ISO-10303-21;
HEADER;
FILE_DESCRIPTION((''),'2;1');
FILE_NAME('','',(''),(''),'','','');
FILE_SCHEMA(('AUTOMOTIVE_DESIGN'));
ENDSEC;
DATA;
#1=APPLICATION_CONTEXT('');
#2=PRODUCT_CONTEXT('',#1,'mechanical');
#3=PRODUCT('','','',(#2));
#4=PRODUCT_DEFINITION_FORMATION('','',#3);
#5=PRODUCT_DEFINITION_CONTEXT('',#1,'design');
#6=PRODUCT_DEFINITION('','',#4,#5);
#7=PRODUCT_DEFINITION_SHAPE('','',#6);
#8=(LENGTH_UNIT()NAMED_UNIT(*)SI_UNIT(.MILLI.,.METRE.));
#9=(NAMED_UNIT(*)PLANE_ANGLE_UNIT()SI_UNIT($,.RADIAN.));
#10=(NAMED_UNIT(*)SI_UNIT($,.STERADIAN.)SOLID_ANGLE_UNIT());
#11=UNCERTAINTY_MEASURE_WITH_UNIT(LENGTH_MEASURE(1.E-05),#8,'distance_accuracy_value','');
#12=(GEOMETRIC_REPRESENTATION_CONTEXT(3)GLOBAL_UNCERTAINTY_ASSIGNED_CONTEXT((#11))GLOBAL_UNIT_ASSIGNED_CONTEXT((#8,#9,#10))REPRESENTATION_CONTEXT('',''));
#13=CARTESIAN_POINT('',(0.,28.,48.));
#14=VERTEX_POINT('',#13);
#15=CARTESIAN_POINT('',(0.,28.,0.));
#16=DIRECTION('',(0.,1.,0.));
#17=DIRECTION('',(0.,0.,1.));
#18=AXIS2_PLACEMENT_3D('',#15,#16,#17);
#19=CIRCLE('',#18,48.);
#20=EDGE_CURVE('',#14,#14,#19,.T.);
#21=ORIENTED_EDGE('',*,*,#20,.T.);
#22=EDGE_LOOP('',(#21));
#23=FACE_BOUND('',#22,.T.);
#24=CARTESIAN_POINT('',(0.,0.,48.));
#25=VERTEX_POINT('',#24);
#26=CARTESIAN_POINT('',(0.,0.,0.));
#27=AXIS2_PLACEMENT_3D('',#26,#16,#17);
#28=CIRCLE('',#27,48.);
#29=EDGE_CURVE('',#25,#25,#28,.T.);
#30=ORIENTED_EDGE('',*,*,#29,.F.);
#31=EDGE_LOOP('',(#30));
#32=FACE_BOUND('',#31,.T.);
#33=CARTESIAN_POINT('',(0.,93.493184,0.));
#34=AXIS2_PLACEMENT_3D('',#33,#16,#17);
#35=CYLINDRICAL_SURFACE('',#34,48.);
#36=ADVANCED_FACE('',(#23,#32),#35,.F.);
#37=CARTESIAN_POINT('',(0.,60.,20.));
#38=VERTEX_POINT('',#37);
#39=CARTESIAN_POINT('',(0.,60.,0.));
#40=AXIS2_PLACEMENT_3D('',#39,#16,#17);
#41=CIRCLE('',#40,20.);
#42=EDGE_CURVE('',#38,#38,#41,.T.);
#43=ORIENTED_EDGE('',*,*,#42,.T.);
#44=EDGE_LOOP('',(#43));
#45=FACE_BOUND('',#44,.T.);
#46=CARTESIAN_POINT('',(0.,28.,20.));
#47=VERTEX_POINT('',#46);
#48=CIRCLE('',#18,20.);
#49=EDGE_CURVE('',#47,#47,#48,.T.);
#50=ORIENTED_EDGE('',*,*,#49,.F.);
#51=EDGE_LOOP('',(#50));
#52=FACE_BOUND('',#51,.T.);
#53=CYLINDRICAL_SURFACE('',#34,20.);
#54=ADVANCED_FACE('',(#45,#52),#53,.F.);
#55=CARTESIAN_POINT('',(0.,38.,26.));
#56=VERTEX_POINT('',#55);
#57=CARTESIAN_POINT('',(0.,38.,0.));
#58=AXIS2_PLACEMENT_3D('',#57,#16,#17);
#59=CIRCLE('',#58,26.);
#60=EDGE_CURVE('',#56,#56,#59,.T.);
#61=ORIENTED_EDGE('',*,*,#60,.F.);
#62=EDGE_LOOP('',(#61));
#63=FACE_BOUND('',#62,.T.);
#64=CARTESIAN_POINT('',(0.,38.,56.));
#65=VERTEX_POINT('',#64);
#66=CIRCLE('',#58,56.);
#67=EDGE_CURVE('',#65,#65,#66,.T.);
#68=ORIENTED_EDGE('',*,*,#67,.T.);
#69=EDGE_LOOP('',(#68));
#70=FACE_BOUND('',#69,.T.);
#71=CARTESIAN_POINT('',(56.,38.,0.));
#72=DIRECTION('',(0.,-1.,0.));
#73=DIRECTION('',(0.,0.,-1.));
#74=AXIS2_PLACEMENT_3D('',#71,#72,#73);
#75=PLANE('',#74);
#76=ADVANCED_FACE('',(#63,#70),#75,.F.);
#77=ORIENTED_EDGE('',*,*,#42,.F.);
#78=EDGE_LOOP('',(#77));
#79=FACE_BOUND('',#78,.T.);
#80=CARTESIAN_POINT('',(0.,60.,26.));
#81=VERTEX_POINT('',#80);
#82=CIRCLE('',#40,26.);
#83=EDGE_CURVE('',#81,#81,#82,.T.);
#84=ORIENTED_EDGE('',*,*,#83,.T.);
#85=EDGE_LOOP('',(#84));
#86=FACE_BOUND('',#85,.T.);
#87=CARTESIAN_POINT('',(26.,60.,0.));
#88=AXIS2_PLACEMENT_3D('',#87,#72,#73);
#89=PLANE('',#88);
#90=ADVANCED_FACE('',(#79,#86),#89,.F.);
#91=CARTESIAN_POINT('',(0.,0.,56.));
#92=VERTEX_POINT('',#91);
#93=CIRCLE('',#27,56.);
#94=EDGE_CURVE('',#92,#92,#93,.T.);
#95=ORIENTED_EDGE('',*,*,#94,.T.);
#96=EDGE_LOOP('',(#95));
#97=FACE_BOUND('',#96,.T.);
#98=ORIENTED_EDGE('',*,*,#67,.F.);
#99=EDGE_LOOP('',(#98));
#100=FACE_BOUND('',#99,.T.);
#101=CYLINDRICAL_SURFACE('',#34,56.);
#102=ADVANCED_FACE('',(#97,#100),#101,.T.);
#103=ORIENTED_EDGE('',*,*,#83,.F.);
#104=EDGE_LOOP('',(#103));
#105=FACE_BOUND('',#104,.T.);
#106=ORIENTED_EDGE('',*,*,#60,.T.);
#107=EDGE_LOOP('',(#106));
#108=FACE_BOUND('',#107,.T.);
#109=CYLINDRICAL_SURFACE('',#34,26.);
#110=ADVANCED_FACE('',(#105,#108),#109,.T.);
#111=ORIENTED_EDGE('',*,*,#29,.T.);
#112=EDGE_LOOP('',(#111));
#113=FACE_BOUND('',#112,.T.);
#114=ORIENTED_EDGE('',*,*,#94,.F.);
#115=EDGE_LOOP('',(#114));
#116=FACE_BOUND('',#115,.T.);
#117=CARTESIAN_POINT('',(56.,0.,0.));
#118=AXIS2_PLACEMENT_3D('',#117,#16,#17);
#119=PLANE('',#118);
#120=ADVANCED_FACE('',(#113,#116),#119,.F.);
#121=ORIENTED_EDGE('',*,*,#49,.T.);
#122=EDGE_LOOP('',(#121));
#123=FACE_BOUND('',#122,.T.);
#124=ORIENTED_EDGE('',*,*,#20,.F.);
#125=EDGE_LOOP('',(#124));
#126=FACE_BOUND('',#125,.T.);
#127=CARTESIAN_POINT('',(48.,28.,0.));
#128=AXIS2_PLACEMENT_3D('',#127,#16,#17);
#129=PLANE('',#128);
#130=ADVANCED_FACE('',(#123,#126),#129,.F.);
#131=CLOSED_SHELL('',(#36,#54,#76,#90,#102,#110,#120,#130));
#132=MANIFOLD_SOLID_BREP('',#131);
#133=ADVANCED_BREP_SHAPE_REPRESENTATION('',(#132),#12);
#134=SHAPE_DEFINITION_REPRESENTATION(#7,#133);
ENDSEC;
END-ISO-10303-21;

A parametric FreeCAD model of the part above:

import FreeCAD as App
import Part
import Sketcher

V = App.Vector


def add_polygon(sketch, points):
    """Adds a closed chain of lines whose ends are joined by coincident constraints."""
    first, n = sketch.GeometryCount, len(points)
    for a, b in zip(points, points[1:] + points[:1]):
        sketch.addGeometry(Part.LineSegment(App.Vector(*a, 0), App.Vector(*b, 0)), False)
    for i in range(n):
        sketch.addConstraint(Sketcher.Constraint("Coincident", first + i, 2, first + (i + 1) % n, 1))

doc = App.newDocument("Part")
body = doc.addObject("PartDesign::Body", "Body")

# Sketch on XY plane
sketch1 = doc.addObject("Sketcher::SketchObject", "Sketch")
body.addObject(sketch1)
sketch1.AttachmentSupport = (doc.XY_Plane, [""])
sketch1.MapMode = "FlatFace"
add_polygon(sketch1, [(48, 0), (56, 0), (56, 38), (26, 38), (26, 60), (20, 60), (20, 28), (48, 28)])  # lines 0-7
sketch1.addConstraint([
    Sketcher.Constraint("Horizontal", 0),
    Sketcher.Constraint("Vertical", 1),
    Sketcher.Constraint("Horizontal", 2),
    Sketcher.Constraint("Vertical", 3),
    Sketcher.Constraint("Horizontal", 4),
    Sketcher.Constraint("Vertical", 5),
    Sketcher.Constraint("Horizontal", 6),
    Sketcher.Constraint("Vertical", 7),
    Sketcher.Constraint("PointOnObject", 0, 2, -1),
    Sketcher.Constraint("Equal", 6, 7),
    Sketcher.Constraint("DistanceX", 0, 1, 0, 2, 8.0),
    Sketcher.Constraint("DistanceX", 2, 2, 2, 1, 30.0),
    Sketcher.Constraint("DistanceX", 4, 2, 4, 1, 6.0),
    Sketcher.Constraint("DistanceY", 1, 1, 1, 2, 38.0),
    Sketcher.Constraint("DistanceY", 3, 1, 3, 2, 22.0),
    Sketcher.Constraint("DistanceX", -1, 1, 0, 2, 56.0),
])
revolution = doc.addObject("PartDesign::Revolution", "Revolution")
body.addObject(revolution)
revolution.Profile = sketch1
revolution.ReferenceAxis = (sketch1, ["V_Axis"])
revolution.Angle = 360

doc.recompute()
